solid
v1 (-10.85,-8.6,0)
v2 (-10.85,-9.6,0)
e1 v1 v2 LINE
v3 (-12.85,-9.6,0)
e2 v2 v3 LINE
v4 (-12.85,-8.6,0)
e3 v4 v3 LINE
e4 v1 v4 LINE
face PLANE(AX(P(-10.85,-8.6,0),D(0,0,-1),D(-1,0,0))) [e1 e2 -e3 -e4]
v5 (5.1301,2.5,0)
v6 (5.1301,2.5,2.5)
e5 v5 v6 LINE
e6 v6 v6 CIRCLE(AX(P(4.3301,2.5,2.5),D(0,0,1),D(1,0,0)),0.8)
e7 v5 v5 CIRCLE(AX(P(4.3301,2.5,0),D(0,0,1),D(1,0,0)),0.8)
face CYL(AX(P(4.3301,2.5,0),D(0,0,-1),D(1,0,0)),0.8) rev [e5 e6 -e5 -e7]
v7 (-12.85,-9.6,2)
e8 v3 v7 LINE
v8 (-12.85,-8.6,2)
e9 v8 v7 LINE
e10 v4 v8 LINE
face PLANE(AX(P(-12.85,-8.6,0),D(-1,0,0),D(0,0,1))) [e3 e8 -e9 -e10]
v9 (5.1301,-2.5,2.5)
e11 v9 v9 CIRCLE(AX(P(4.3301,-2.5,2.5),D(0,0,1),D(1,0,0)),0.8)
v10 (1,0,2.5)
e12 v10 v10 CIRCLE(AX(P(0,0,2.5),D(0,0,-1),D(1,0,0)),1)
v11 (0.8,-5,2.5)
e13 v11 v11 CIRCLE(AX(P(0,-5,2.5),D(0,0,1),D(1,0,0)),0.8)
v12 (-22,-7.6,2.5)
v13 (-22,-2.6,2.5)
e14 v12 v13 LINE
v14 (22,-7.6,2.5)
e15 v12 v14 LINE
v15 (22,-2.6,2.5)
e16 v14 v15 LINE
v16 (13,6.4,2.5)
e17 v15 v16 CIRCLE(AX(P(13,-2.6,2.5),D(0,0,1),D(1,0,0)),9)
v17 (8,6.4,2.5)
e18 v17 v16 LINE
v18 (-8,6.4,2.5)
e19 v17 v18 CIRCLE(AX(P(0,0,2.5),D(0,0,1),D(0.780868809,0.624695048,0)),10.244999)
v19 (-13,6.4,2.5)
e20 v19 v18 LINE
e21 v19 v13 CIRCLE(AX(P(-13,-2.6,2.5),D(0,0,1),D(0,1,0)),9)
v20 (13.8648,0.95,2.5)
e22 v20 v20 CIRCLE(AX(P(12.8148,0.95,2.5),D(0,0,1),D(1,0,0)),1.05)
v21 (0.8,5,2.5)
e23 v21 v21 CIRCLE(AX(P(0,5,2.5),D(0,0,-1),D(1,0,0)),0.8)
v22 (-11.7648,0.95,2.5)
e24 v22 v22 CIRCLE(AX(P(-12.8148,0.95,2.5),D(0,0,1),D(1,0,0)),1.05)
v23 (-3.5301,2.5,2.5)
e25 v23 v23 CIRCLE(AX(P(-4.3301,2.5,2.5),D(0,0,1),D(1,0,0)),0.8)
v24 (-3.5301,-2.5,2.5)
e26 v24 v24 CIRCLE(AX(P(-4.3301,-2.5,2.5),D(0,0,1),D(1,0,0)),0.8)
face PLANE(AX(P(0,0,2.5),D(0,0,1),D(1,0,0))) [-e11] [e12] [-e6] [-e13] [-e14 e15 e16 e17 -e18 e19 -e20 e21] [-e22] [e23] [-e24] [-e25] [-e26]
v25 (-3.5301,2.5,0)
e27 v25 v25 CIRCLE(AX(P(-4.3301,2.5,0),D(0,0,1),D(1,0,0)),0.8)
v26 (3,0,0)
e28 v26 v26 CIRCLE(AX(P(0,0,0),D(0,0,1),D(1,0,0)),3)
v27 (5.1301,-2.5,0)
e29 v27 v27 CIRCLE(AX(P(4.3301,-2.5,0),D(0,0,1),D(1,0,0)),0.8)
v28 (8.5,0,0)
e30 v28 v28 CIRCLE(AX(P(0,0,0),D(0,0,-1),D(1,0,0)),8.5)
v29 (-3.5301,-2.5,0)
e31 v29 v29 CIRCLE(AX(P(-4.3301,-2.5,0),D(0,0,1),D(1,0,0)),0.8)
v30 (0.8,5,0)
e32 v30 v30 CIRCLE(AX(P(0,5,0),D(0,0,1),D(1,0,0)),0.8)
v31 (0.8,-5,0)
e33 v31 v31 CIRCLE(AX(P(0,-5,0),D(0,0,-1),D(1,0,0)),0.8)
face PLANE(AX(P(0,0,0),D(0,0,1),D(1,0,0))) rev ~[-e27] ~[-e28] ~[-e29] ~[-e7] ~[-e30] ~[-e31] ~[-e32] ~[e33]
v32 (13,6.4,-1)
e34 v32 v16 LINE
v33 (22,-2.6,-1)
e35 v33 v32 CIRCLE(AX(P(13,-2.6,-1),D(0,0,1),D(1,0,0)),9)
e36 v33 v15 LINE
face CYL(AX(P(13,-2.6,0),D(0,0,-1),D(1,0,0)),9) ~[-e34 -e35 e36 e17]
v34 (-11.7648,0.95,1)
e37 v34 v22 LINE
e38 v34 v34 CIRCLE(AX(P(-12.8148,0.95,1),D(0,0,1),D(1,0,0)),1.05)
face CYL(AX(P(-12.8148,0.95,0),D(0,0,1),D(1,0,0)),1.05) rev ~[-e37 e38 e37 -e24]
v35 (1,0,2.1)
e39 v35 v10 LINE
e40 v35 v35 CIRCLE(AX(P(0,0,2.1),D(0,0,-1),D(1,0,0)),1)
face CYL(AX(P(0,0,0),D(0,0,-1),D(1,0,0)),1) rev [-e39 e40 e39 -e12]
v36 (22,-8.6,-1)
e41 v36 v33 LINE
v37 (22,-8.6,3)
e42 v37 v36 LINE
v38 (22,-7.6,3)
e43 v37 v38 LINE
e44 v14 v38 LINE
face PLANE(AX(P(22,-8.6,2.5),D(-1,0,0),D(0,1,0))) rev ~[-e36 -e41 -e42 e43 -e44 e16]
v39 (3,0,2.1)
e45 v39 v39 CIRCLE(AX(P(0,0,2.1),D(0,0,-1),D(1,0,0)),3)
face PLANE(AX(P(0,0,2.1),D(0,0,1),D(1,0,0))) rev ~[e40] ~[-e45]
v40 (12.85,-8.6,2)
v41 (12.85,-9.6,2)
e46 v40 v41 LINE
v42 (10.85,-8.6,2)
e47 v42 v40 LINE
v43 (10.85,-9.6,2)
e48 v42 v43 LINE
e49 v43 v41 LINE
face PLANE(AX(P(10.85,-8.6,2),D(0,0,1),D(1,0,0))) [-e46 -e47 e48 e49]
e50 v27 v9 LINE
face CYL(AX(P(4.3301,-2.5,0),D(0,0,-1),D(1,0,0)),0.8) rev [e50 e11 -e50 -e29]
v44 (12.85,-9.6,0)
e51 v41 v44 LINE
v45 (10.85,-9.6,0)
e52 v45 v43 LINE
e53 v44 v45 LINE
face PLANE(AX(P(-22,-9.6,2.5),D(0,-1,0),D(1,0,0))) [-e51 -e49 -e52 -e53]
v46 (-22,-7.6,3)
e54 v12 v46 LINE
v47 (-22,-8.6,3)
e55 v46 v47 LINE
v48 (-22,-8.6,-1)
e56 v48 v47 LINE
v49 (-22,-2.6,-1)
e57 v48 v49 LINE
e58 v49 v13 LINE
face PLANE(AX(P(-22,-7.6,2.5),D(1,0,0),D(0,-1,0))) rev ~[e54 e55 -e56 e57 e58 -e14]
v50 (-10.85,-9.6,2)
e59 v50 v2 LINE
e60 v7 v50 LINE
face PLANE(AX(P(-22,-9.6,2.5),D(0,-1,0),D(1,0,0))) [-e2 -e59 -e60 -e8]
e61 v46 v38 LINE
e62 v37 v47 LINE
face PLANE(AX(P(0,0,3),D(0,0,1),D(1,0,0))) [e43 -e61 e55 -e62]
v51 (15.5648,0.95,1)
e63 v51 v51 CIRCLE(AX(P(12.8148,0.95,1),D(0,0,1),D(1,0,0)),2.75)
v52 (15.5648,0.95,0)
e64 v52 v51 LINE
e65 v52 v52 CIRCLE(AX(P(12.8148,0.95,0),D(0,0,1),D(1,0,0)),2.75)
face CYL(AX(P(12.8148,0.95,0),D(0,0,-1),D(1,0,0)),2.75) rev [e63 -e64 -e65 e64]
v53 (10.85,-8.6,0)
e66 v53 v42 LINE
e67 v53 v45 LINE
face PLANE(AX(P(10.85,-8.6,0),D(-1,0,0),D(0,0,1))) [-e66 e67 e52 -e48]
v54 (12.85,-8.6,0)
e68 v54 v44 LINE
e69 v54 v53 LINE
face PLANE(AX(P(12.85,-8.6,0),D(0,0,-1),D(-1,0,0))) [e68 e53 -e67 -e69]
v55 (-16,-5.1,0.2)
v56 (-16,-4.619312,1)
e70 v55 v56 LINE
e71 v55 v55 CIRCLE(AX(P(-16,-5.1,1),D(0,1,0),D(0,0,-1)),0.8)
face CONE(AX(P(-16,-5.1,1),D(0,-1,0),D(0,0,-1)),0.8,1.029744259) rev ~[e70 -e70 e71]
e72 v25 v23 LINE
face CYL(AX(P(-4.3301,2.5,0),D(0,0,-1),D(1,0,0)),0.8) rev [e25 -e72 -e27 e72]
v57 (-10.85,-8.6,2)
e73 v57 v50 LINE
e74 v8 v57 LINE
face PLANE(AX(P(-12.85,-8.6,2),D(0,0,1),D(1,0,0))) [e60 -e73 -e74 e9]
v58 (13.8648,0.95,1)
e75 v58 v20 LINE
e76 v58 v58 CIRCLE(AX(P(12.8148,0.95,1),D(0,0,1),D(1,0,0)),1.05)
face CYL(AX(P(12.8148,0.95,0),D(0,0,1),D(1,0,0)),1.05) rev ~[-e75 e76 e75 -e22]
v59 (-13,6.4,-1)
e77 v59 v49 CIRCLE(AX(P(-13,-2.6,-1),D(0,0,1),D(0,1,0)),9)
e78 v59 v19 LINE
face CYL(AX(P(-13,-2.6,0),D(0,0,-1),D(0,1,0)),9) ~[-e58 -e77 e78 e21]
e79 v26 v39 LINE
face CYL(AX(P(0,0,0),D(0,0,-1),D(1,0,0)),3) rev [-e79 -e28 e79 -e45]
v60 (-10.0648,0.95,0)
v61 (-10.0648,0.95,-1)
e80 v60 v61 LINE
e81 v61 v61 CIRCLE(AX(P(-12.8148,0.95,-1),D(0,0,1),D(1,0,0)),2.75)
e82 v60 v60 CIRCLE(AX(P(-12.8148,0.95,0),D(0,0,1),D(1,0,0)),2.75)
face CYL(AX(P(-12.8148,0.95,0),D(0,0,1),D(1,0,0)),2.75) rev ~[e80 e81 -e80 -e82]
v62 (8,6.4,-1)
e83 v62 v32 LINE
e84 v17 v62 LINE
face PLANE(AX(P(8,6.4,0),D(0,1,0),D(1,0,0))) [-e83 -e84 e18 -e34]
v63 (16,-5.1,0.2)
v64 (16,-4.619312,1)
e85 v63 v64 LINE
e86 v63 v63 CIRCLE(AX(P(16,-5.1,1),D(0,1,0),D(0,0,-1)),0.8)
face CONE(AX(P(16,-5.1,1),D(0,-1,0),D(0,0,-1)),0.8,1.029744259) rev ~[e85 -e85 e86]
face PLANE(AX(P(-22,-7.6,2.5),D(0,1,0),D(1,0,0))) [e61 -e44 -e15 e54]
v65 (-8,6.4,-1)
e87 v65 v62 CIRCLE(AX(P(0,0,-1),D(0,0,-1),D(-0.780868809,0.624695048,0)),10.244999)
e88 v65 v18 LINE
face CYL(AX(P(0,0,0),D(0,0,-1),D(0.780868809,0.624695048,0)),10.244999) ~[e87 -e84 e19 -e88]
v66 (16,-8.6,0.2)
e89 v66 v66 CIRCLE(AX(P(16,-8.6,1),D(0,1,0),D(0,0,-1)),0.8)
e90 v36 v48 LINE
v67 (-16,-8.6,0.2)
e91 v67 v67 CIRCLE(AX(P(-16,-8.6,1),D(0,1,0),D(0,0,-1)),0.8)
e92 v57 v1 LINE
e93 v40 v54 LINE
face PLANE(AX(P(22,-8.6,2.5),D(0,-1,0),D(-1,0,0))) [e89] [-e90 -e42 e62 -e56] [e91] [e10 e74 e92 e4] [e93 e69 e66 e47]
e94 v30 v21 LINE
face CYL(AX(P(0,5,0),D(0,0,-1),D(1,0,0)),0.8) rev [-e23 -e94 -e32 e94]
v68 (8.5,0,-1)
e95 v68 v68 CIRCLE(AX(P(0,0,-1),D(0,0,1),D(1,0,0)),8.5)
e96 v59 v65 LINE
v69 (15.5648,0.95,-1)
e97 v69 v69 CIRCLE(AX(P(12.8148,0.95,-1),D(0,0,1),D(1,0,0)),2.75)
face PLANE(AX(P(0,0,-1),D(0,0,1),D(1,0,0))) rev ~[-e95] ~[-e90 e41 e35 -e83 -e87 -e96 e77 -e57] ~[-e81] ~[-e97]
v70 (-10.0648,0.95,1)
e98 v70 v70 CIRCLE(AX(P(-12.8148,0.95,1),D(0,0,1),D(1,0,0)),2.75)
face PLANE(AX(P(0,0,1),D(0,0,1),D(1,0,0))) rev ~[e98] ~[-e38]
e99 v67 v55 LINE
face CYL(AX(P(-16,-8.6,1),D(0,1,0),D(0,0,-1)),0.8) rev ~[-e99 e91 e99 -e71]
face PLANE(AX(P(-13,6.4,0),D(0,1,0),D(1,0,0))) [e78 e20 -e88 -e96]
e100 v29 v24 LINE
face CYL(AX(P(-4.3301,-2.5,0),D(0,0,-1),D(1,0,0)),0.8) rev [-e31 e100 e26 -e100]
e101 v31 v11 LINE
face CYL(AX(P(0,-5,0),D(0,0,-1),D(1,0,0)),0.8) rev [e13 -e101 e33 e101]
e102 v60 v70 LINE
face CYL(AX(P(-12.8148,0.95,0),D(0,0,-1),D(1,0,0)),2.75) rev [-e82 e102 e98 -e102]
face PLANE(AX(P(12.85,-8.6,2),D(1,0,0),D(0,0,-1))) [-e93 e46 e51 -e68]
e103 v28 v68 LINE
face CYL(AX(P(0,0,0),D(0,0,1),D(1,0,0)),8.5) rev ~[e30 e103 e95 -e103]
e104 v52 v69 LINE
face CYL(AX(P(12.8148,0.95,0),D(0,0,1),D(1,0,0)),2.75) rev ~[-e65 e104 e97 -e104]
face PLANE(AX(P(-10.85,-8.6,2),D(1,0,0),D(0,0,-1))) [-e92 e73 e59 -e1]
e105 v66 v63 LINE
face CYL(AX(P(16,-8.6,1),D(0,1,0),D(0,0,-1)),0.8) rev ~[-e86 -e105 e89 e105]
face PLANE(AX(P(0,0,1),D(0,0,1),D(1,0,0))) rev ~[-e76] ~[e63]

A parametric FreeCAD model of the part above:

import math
import FreeCAD as App
import Part
import Sketcher
from FreeCAD import Vector
Q = App.Units.Quantity

doc = App.newDocument("Part")
body = doc.addObject("PartDesign::Body", "Body")

# Sketch on XY plane
sketch1 = body.newObject("Sketcher::SketchObject", "Sketch")
sketch1.AttachmentSupport = (doc.getObject("XY_Plane"), [""])
sketch1.MapMode = "FlatFace"
sketch1.addGeometry([
    Part.ArcOfCircle(Part.Circle(Vector(0, 0, 0), Vector(0, 0, 1), 10.2), math.radians(39), math.radians(141)),  # 0
    Part.LineSegment(Vector(-8, 6.4, 0), Vector(-13, 6.4, 0)),  # 1
    Part.ArcOfCircle(Part.Circle(Vector(-13, -2.6, 0), Vector(0, 0, 1), 9), math.radians(90), math.radians(180)),  # 2
    Part.LineSegment(Vector(-22, -2.6, 0), Vector(-22, -8.6, 0)),  # 3
    Part.LineSegment(Vector(-22, -8.6, 0), Vector(22, -8.6, 0)),  # 4
    Part.LineSegment(Vector(22, -8.6, 0), Vector(22, -2.6, 0)),  # 5
    Part.ArcOfCircle(Part.Circle(Vector(13, -2.6, 0), Vector(0, 0, 1), 9), math.radians(0), math.radians(90)),  # 6
    Part.LineSegment(Vector(13, 6.4, 0), Vector(8, 6.4, 0)),  # 7
    Part.Circle(Vector(0, -5, 0), Vector(0, 0, 1), 0.8),  # 8
    Part.Circle(Vector(0, 5, 0), Vector(0, 0, 1), 0.8),  # 9
    Part.Circle(Vector(4.3, -2.5, 0), Vector(0, 0, 1), 0.8),  # 10
    Part.Circle(Vector(4.3, 2.5, 0), Vector(0, 0, 1), 0.8),  # 11
    Part.Circle(Vector(-4.3, 2.5, 0), Vector(0, 0, 1), 0.8),  # 12
    Part.Circle(Vector(-4.3, -2.5, 0), Vector(0, 0, 1), 0.8),  # 13
    Part.Circle(Vector(0, 0, 0), Vector(0, 0, 1), 1),  # 14
], False)
sketch1.addConstraint([
    Sketcher.Constraint("Coincident", 0, 2, 1, 1),
    Sketcher.Constraint("Tangent", 1, 2, 2, 1),
    Sketcher.Constraint("Tangent", 2, 2, 3, 1),
    Sketcher.Constraint("Coincident", 3, 2, 4, 1),
    Sketcher.Constraint("Coincident", 4, 2, 5, 1),
    Sketcher.Constraint("Tangent", 5, 2, 6, 1),
    Sketcher.Constraint("Tangent", 6, 2, 7, 1),
    Sketcher.Constraint("Coincident", 7, 2, 0, 1),
    Sketcher.Constraint("Horizontal", 1),
    Sketcher.Constraint("Vertical", 3),
    Sketcher.Constraint("Horizontal", 4),
    Sketcher.Constraint("Vertical", 5),
    Sketcher.Constraint("Horizontal", 7),
    Sketcher.Constraint("Coincident", 0, 3, -1, 1),
    Sketcher.Constraint("Coincident", 14, 3, -1, 1),
    Sketcher.Constraint("Equal", 2, 6),
    Sketcher.Constraint("Equal", 8, 9),
    Sketcher.Constraint("Equal", 9, 10),
    Sketcher.Constraint("Equal", 10, 11),
    Sketcher.Constraint("Equal", 11, 12),
    Sketcher.Constraint("Equal", 12, 13),
    Sketcher.Constraint("Symmetric", 8, 3, 9, 3, -1, 1),
    Sketcher.Constraint("Symmetric", 10, 3, 12, 3, -1, 1),
    Sketcher.Constraint("Symmetric", 11, 3, 13, 3, -1, 1),
    Sketcher.Constraint("Symmetric", 2, 3, 6, 3, -2),
    Sketcher.Constraint("Symmetric", 11, 3, 12, 3, -2),
    Sketcher.Constraint("PointOnObject", 8, 3, -2),
    Sketcher.Constraint("Diameter", 14, Q("2 mm")),
    Sketcher.Constraint("Diameter", 8, Q("1.6 mm")),
    Sketcher.Constraint("DistanceX", 1, 2, 1, 1, Q("5 mm")),
    Sketcher.Constraint("DistanceY", 3, 2, 3, 1, Q("6 mm")),
    Sketcher.Constraint("DistanceY", 8, 3, -1, 1, Q("5 mm")),
    Sketcher.Constraint("DistanceX", 2, 2, -1, 1, Q("22 mm")),
    Sketcher.Constraint("Radius", 2, Q("9 mm")),
    Sketcher.Constraint("DistanceY", 10, 3, 11, 3, Q("5 mm")),
    Sketcher.Constraint("DistanceY", 3, 2, -1, 1, Q("8.6 mm")),
    Sketcher.Constraint("DistanceX", -1, 1, 10, 3, Q("4.33 mm")),
])
pad1 = body.newObject("PartDesign::Pad", "Pad")
pad1.Profile = sketch1
pad1.Type = "TwoLengths"
pad1.Length = 2.5
pad1.Length2 = 1

# Sketch on XY plane
sketch2 = body.newObject("Sketcher::SketchObject", "Sketch001")
sketch2.AttachmentSupport = (doc.getObject("XY_Plane"), [""])
sketch2.MapMode = "FlatFace"
sketch2.addGeometry([
    Part.Circle(Vector(0, 0, 0), Vector(0, 0, 1), 8.5),  # 0
    Part.Circle(Vector(0, -5, 0), Vector(0, 0, 1), 0.8),  # 1
    Part.Circle(Vector(0, 5, 0), Vector(0, 0, 1), 0.8),  # 2
    Part.Circle(Vector(4.3, -2.5, 0), Vector(0, 0, 1), 0.8),  # 3
    Part.Circle(Vector(4.3, 2.5, 0), Vector(0, 0, 1), 0.8),  # 4
    Part.Circle(Vector(-4.3, 2.5, 0), Vector(0, 0, 1), 0.8),  # 5
    Part.Circle(Vector(-4.3, -2.5, 0), Vector(0, 0, 1), 0.8),  # 6
    Part.Circle(Vector(0, 0, 0), Vector(0, 0, 1), 1),  # 7
], False)
sketch2.addConstraint([
    Sketcher.Constraint("Coincident", 0, 3, -1, 1),
    Sketcher.Constraint("Coincident", 7, 3, -1, 1),
    Sketcher.Constraint("Equal", 1, 2),
    Sketcher.Constraint("Equal", 2, 3),
    Sketcher.Constraint("Equal", 3, 4),
    Sketcher.Constraint("Equal", 4, 5),
    Sketcher.Constraint("Equal", 5, 6),
    Sketcher.Constraint("Symmetric", 1, 3, 2, 3, -1, 1),
    Sketcher.Constraint("Symmetric", 3, 3, 5, 3, -1, 1),
    Sketcher.Constraint("Symmetric", 4, 3, 6, 3, -1, 1),
    Sketcher.Constraint("Symmetric", 4, 3, 5, 3, -2),
    Sketcher.Constraint("PointOnObject", 1, 3, -2),
    Sketcher.Constraint("Diameter", 0, Q("17 mm")),
    Sketcher.Constraint("Diameter", 7, Q("2 mm")),
    Sketcher.Constraint("Diameter", 1, Q("1.6 mm")),
    Sketcher.Constraint("DistanceY", 1, 3, -1, 1, Q("5 mm")),
    Sketcher.Constraint("DistanceY", 3, 3, 4, 3, Q("5 mm")),
    Sketcher.Constraint("DistanceX", -1, 1, 3, 3, Q("4.33 mm")),
])
pocket1 = body.newObject("PartDesign::Pocket", "Pocket")
pocket1.Profile = sketch2
pocket1.Length = 1

# Sketch on XZ plane
sketch3 = body.newObject("Sketcher::SketchObject", "Sketch002")
sketch3.AttachmentSupport = (doc.getObject("XZ_Plane"), [""])
sketch3.MapMode = "FlatFace"
sketch3.AttachmentOffset = App.Placement(Vector(0, 0, 8.6), App.Rotation())
sketch3.addGeometry(Part.Circle(Vector(16, 1, 0), Vector(0, 0, 1), 0.8), False)
sketch3.addConstraint([
    Sketcher.Constraint("Diameter", 0, Q("1.6 mm")),
    Sketcher.Constraint("DistanceX", -1, 1, 0, 3, Q("16 mm")),
    Sketcher.Constraint("DistanceY", -1, 1, 0, 3, Q("1 mm")),
])
doc.recompute()
hole = body.newObject("PartDesign::Hole", "Hole")
hole.Profile = sketch3
hole.ThreadType = "None"
hole.Diameter = 1.6
hole.DepthType = "Dimension"
hole.Depth = 3.5
hole.DrillPoint = "Angled"
hole.DrillPointAngle = 118

# Sketch on XZ plane
sketch4 = body.newObject("Sketcher::SketchObject", "Sketch003")
sketch4.AttachmentSupport = (doc.getObject("XZ_Plane"), [""])
sketch4.MapMode = "FlatFace"
sketch4.AttachmentOffset = App.Placement(Vector(0, 0, 8.6), App.Rotation())
sketch4.addGeometry(Part.Circle(Vector(-16, 1, 0), Vector(0, 0, 1), 0.8), False)
sketch4.addConstraint([
    Sketcher.Constraint("Diameter", 0, Q("1.6 mm")),
    Sketcher.Constraint("DistanceX", 0, 3, -1, 1, Q("16 mm")),
    Sketcher.Constraint("DistanceY", -1, 1, 0, 3, Q("1 mm")),
])
doc.recompute()
hole2 = body.newObject("PartDesign::Hole", "Hole001")
hole2.Profile = sketch4
hole2.ThreadType = "None"
hole2.Diameter = 1.6
hole2.DepthType = "Dimension"
hole2.Depth = 3.5
hole2.DrillPoint = "Angled"
hole2.DrillPointAngle = 118

# Sketch on XY plane
sketch5 = body.newObject("Sketcher::SketchObject", "Sketch004")
sketch5.AttachmentSupport = (doc.getObject("XY_Plane"), [""])
sketch5.MapMode = "FlatFace"
sketch5.addGeometry([
    Part.Circle(Vector(0, 0, 0), Vector(0, 0, 1), 3),
    Part.Circle(Vector(0, 0, 0), Vector(0, 0, 1), 1),
], False)
sketch5.addConstraint([
    Sketcher.Constraint("Coincident", 0, 3, -1, 1),
    Sketcher.Constraint("Coincident", 1, 3, -1, 1),
    Sketcher.Constraint("Diameter", 0, Q("6 mm")),
    Sketcher.Constraint("Diameter", 1, Q("2 mm")),
])
pocket2 = body.newObject("PartDesign::Pocket", "Pocket001")
pocket2.Profile = sketch5
pocket2.Length = 2.1
pocket2.Reversed = True

# Sketch on XY plane
sketch6 = body.newObject("Sketcher::SketchObject", "Sketch005")
sketch6.AttachmentSupport = (doc.getObject("XY_Plane"), [""])
sketch6.MapMode = "FlatFace"
sketch6.AttachmentOffset = App.Placement(Vector(0, 0, 2.5), App.Rotation())
sketch6.addGeometry([
    Part.LineSegment(Vector(22, -7.6, 0), Vector(-22, -7.6, 0)),
    Part.LineSegment(Vector(-22, -7.6, 0), Vector(-22, -8.6, 0)),
    Part.LineSegment(Vector(-22, -8.6, 0), Vector(22, -8.6, 0)),
    Part.LineSegment(Vector(22, -8.6, 0), Vector(22, -7.6, 0)),
], False)
sketch6.addConstraint([
    Sketcher.Constraint("Coincident", 0, 2, 1, 1),
    Sketcher.Constraint("Coincident", 1, 2, 2, 1),
    Sketcher.Constraint("Coincident", 2, 2, 3, 1),
    Sketcher.Constraint("Coincident", 3, 2, 0, 1),
    Sketcher.Constraint("Horizontal", 0),
    Sketcher.Constraint("Vertical", 1),
    Sketcher.Constraint("Horizontal", 2),
    Sketcher.Constraint("Vertical", 3),
    Sketcher.Constraint("DistanceX", 0, 2, 0, 1, Q("44 mm")),
    Sketcher.Constraint("DistanceY", 1, 2, 1, 1, Q("1 mm")),
    Sketcher.Constraint("DistanceX", 0, 2, -1, 1, Q("22 mm")),
    Sketcher.Constraint("DistanceY", 0, 2, -1, 1, Q("7.6 mm")),
])
pad2 = body.newObject("PartDesign::Pad", "Pad001")
pad2.Profile = sketch6
pad2.Length = 0.5

# Sketch on XY plane
sketch7 = body.newObject("Sketcher::SketchObject", "Sketch006")
sketch7.AttachmentSupport = (doc.getObject("XY_Plane"), [""])
sketch7.MapMode = "FlatFace"
sketch7.addGeometry([
    Part.Circle(Vector(12.8, 0.9, 0), Vector(0, 0, 1), 1.1),
    Part.Circle(Vector(-12.8, 0.9, 0), Vector(0, 0, 1), 1.1),
], False)
sketch7.addConstraint([
    Sketcher.Constraint("Equal", 0, 1),
    Sketcher.Constraint("Symmetric", 0, 3, 1, 3, -2),
    Sketcher.Constraint("Diameter", 0, Q("2.1 mm")),
    Sketcher.Constraint("DistanceY", -1, 1, 0, 3, Q("0.95 mm")),
    Sketcher.Constraint("DistanceX", -1, 1, 0, 3, Q("12.8148 mm")),
])
pocket3 = body.newObject("PartDesign::Pocket", "Pocket002")
pocket3.Profile = sketch7
pocket3.Type = "ThroughAll"
pocket3.Midplane = True

# Sketch on XY plane
sketch8 = body.newObject("Sketcher::SketchObject", "Sketch007")
sketch8.AttachmentSupport = (doc.getObject("XY_Plane"), [""])
sketch8.MapMode = "FlatFace"
sketch8.addGeometry([
    Part.Circle(Vector(12.8, 0.9, 0), Vector(0, 0, 1), 2.8),
    Part.Circle(Vector(12.8, 0.9, 0), Vector(0, 0, 1), 1.1),
], False)
sketch8.addConstraint([
    Sketcher.Constraint("Coincident", 1, 3, 0, 3),
    Sketcher.Constraint("Diameter", 0, Q("5.5 mm")),
    Sketcher.Constraint("Diameter", 1, Q("2.1 mm")),
    Sketcher.Constraint("DistanceY", -1, 1, 0, 3, Q("0.95 mm")),
    Sketcher.Constraint("DistanceX", -1, 1, 0, 3, Q("12.8148 mm")),
])
pocket4 = body.newObject("PartDesign::Pocket", "Pocket003")
pocket4.Profile = sketch8
pocket4.Type = "TwoLengths"
pocket4.Length = 1
pocket4.Length2 = 1
pocket4.Reversed = True

# Sketch on XY plane
sketch9 = body.newObject("Sketcher::SketchObject", "Sketch008")
sketch9.AttachmentSupport = (doc.getObject("XY_Plane"), [""])
sketch9.MapMode = "FlatFace"
sketch9.addGeometry([
    Part.Circle(Vector(-12.8, 0.9, 0), Vector(0, 0, 1), 2.8),
    Part.Circle(Vector(-12.8, 0.9, 0), Vector(0, 0, 1), 1.1),
], False)
sketch9.addConstraint([
    Sketcher.Constraint("Coincident", 1, 3, 0, 3),
    Sketcher.Constraint("Diameter", 0, Q("5.5 mm")),
    Sketcher.Constraint("Diameter", 1, Q("2.1 mm")),
    Sketcher.Constraint("DistanceY", -1, 1, 0, 3, Q("0.95 mm")),
    Sketcher.Constraint("DistanceX", 0, 3, -1, 1, Q("12.8148 mm")),
])
pocket5 = body.newObject("PartDesign::Pocket", "Pocket004")
pocket5.Profile = sketch9
pocket5.Type = "TwoLengths"
pocket5.Length = 1
pocket5.Length2 = 1
pocket5.Reversed = True

# Sketch on XZ plane
sketch10 = body.newObject("Sketcher::SketchObject", "Sketch009")
sketch10.AttachmentSupport = (doc.getObject("XZ_Plane"), [""])
sketch10.MapMode = "FlatFace"
sketch10.AttachmentOffset = App.Placement(Vector(0, 0, 8.6), App.Rotation())
sketch10.addGeometry([
    Part.LineSegment(Vector(-10.8, 2, 0), Vector(-12.8, 2, 0)),  # 0
    Part.LineSegment(Vector(-12.8, 2, 0), Vector(-12.8, 0, 0)),  # 1
    Part.LineSegment(Vector(-12.8, 0, 0), Vector(-10.8, 0, 0)),  # 2
    Part.LineSegment(Vector(-10.8, 0, 0), Vector(-10.8, 2, 0)),  # 3
    Part.LineSegment(Vector(12.8, 2, 0), Vector(10.8, 2, 0)),  # 4
    Part.LineSegment(Vector(10.8, 2, 0), Vector(10.8, 0, 0)),  # 5
    Part.LineSegment(Vector(10.8, 0, 0), Vector(12.8, 0, 0)),  # 6
    Part.LineSegment(Vector(12.8, 0, 0), Vector(12.8, 2, 0)),  # 7
], False)
sketch10.addConstraint([
    Sketcher.Constraint("Coincident", 0, 2, 1, 1),
    Sketcher.Constraint("Coincident", 1, 2, 2, 1),
    Sketcher.Constraint("Coincident", 2, 2, 3, 1),
    Sketcher.Constraint("Coincident", 3, 2, 0, 1),
    Sketcher.Constraint("Coincident", 4, 2, 5, 1),
    Sketcher.Constraint("Coincident", 5, 2, 6, 1),
    Sketcher.Constraint("Coincident", 6, 2, 7, 1),
    Sketcher.Constraint("Coincident", 7, 2, 4, 1),
    Sketcher.Constraint("Horizontal", 0),
    Sketcher.Constraint("Vertical", 1),
    Sketcher.Constraint("Horizontal", 2),
    Sketcher.Constraint("Vertical", 3),
    Sketcher.Constraint("Horizontal", 4),
    Sketcher.Constraint("Vertical", 5),
    Sketcher.Constraint("Horizontal", 6),
    Sketcher.Constraint("Vertical", 7),
    Sketcher.Constraint("Symmetric", 2, 2, 5, 2, -1, 1),
    Sketcher.Constraint("Symmetric", 1, 2, 6, 2, -2),
    Sketcher.Constraint("Horizontal", 3, 2, 4, 2),
    Sketcher.Constraint("Equal", 6, 1),
    Sketcher.Constraint("DistanceX", 0, 2, 0, 1, Q("2 mm")),
    Sketcher.Constraint("DistanceX", 3, 2, 4, 2, Q("21.7 mm")),
])
pad3 = body.newObject("PartDesign::Pad", "Pad002")
pad3.Profile = sketch10
pad3.Length = 1

doc.recompute()
